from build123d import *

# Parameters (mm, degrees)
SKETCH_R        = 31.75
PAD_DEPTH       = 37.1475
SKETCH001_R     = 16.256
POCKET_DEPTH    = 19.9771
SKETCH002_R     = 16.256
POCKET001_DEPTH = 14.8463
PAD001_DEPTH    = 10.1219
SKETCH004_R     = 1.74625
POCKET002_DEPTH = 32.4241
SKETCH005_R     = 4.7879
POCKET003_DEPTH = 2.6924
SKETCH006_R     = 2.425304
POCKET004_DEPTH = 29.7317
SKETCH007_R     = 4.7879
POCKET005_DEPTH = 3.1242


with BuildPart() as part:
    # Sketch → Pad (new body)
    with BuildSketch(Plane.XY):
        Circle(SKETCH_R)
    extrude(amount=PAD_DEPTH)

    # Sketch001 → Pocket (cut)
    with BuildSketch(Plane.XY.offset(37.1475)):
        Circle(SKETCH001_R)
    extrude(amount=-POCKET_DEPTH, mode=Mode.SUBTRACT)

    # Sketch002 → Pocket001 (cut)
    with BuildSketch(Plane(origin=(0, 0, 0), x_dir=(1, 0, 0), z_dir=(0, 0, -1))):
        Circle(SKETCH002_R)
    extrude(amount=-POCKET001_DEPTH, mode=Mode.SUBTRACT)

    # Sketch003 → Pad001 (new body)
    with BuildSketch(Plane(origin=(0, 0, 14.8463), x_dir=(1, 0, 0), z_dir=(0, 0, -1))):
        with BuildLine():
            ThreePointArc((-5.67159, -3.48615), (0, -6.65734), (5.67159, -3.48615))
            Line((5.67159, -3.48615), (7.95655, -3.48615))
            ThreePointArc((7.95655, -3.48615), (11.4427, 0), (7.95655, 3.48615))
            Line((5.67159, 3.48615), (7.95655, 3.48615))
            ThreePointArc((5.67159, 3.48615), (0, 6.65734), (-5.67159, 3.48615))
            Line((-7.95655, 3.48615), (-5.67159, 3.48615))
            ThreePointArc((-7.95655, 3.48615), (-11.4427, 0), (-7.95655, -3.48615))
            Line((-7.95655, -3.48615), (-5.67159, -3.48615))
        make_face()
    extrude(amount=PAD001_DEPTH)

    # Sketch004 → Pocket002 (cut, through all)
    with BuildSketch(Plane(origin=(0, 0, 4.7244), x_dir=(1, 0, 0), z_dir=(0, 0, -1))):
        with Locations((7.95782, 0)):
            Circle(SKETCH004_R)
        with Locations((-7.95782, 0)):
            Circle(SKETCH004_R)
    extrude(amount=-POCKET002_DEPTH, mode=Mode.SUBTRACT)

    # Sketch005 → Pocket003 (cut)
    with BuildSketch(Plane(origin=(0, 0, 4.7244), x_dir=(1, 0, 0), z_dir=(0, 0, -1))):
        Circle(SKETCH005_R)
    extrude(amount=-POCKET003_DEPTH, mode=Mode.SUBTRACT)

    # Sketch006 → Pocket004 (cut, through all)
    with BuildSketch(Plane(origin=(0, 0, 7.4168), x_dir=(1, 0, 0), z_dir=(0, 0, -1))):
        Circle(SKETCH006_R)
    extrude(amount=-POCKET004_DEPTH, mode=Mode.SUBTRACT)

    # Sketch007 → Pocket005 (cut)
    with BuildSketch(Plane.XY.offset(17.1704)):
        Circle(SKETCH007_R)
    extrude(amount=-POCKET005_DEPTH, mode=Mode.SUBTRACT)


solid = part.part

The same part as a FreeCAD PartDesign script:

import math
import FreeCAD as App
import Part
import Sketcher
from FreeCAD import Vector
Q = App.Units.Quantity

doc = App.newDocument("Part")
body = doc.addObject("PartDesign::Body", "Body")

sketch1 = body.newObject("Sketcher::SketchObject", "Sketch")
sketch1.AttachmentSupport = (doc.getObject("XY_Plane"), [""])
sketch1.MapMode = "FlatFace"
sketch1.addGeometry(Part.Circle(Vector(0, 0, 0), Vector(0, 0, 1), 31.75), False)
sketch1.addConstraint([
    Sketcher.Constraint("Coincident", 0, 3, -1, 1),
    Sketcher.Constraint("Diameter", 0, Q("2.5 in")),
])
pad1 = body.newObject("PartDesign::Pad", "Pad")
pad1.Profile = sketch1
pad1.Length = Q("1.4625 in")

sketch2 = body.newObject("Sketcher::SketchObject", "Sketch001")
sketch2.AttachmentSupport = (doc.getObject("XY_Plane"), [""])
sketch2.MapMode = "FlatFace"
sketch2.AttachmentOffset = App.Placement(Vector(0, 0, 1.4625 * 25.4), App.Rotation())
sketch2.addGeometry(Part.Circle(Vector(0, 0, 0), Vector(0, 0, 1), 16.256), False)
sketch2.addConstraint([
    Sketcher.Constraint("Coincident", 0, 3, -1, 1),
    Sketcher.Constraint("Diameter", 0, Q("1.28 in")),
])
pocket1 = body.newObject("PartDesign::Pocket", "Pocket")
pocket1.Profile = sketch2
pocket1.Length = Q("0.7865 in")

sketch3 = body.newObject("Sketcher::SketchObject", "Sketch002")
sketch3.AttachmentSupport = (doc.getObject("XY_Plane"), [""])
sketch3.MapMode = "FlatFace"
sketch3.addGeometry(Part.Circle(Vector(0, 0, 0), Vector(0, 0, 1), 16.256), False)
sketch3.addConstraint([
    Sketcher.Constraint("Coincident", 0, 3, -1, 1),
    Sketcher.Constraint("Diameter", 0, Q("1.28 in")),
])
pocket2 = body.newObject("PartDesign::Pocket", "Pocket001")
pocket2.Profile = sketch3
pocket2.Length = Q("0.5845 in")
pocket2.Reversed = True

sketch4 = body.newObject("Sketcher::SketchObject", "Sketch003")
sketch4.AttachmentSupport = (doc.getObject("XY_Plane"), [""])
sketch4.MapMode = "FlatFace"
sketch4.AttachmentOffset = App.Placement(Vector(0, 0, 0.5845 * 25.4), App.Rotation())
sketch4.addGeometry([
    Part.ArcOfCircle(Part.Circle(Vector(0, 0, 0), Vector(0, 0, 1), 6.65734), math.radians(31.577748), math.radians(148.422252)),
    Part.LineSegment(Vector(5.67159, 3.48615, 0), Vector(7.95655, 3.48615, 0)),
    Part.ArcOfCircle(Part.Circle(Vector(7.95655, 0, 0), Vector(0, 0, 1), 3.48615), math.radians(-90), math.radians(90)),
    Part.LineSegment(Vector(7.95655, -3.48615, 0), Vector(5.67159, -3.48615, 0)),
    Part.ArcOfCircle(Part.Circle(Vector(0, 0, 0), Vector(0, 0, 1), 6.65734), math.radians(-148.422252), math.radians(-31.577748)),
    Part.LineSegment(Vector(-5.67159, -3.48615, 0), Vector(-7.95655, -3.48615, 0)),
    Part.ArcOfCircle(Part.Circle(Vector(-7.95655, 0, 0), Vector(0, 0, 1), 3.48615), math.radians(90), math.radians(270)),
    Part.LineSegment(Vector(-7.95655, 3.48615, 0), Vector(-5.67159, 3.48615, 0)),
], False)
sketch4.addConstraint([
    Sketcher.Constraint("Coincident", 0, 1, 1, 1),
    Sketcher.Constraint("Tangent", 1, 2, 2, 2),
    Sketcher.Constraint("Tangent", 2, 1, 3, 1),
    Sketcher.Constraint("Coincident", 3, 2, 4, 2),
    Sketcher.Constraint("Coincident", 4, 1, 5, 1),
    Sketcher.Constraint("Tangent", 5, 2, 6, 2),
    Sketcher.Constraint("Tangent", 6, 1, 7, 1),
    Sketcher.Constraint("Coincident", 7, 2, 0, 2),
    Sketcher.Constraint("Horizontal", 1),
    Sketcher.Constraint("Horizontal", 3),
    Sketcher.Constraint("Horizontal", 5),
    Sketcher.Constraint("Horizontal", 7),
    Sketcher.Constraint("Coincident", 0, 3, -1, 1),
    Sketcher.Constraint("Coincident", 4, 3, -1, 1),
    Sketcher.Constraint("Equal", 0, 4),
    Sketcher.Constraint("Equal", 2, 6),
    Sketcher.Constraint("Symmetric", 2, 3, 6, 3, -1, 1),
    Sketcher.Constraint("PointOnObject", 2, 3, -1),
    Sketcher.Constraint("Radius", 0, Q("0.2621 in")),
    Sketcher.Constraint("Radius", 2, Q("3.48615 mm")),
    Sketcher.Constraint("DistanceX", 6, 3, 2, 3, Q("0.6265 in")),
])
pad2 = body.newObject("PartDesign::Pad", "Pad001")
pad2.Profile = sketch4
pad2.Length = Q("0.3985 in")
pad2.Reversed = True

sketch5 = body.newObject("Sketcher::SketchObject", "Sketch004")
sketch5.AttachmentSupport = (doc.getObject("XY_Plane"), [""])
sketch5.MapMode = "FlatFace"
sketch5.AttachmentOffset = App.Placement(Vector(0, 0, 0.186 * 25.4), App.Rotation())
sketch5.addGeometry([
    Part.Circle(Vector(7.95782, 0, 0), Vector(0, 0, 1), 1.74625),
    Part.Circle(Vector(-7.95782, 0, 0), Vector(0, 0, 1), 1.74625),
], False)
sketch5.addConstraint([
    Sketcher.Constraint("Equal", 0, 1),
    Sketcher.Constraint("Symmetric", 0, 3, 1, 3, -1, 1),
    Sketcher.Constraint("PointOnObject", 0, 3, -1),
    Sketcher.Constraint("Diameter", 0, Q("0.1375 in")),
    Sketcher.Constraint("DistanceX", -1, 1, 0, 3, Q("0.3133 in")),
])
pocket3 = body.newObject("PartDesign::Pocket", "Pocket002")
pocket3.Profile = sketch5
pocket3.Type = "ThroughAll"
pocket3.Reversed = True

sketch6 = body.newObject("Sketcher::SketchObject", "Sketch005")
sketch6.AttachmentSupport = (doc.getObject("XY_Plane"), [""])
sketch6.MapMode = "FlatFace"
sketch6.AttachmentOffset = App.Placement(Vector(0, 0, 0.186 * 25.4), App.Rotation())
sketch6.addGeometry(Part.Circle(Vector(0, 0, 0), Vector(0, 0, 1), 4.7879), False)
sketch6.addConstraint([
    Sketcher.Constraint("Coincident", 0, 3, -1, 1),
    Sketcher.Constraint("Diameter", 0, Q("0.377 in")),
])
pocket4 = body.newObject("PartDesign::Pocket", "Pocket003")
pocket4.Profile = sketch6
pocket4.Length = Q("0.106 in")
pocket4.Reversed = True

sketch7 = body.newObject("Sketcher::SketchObject", "Sketch006")
sketch7.AttachmentSupport = (doc.getObject("XY_Plane"), [""])
sketch7.MapMode = "FlatFace"
sketch7.AttachmentOffset = App.Placement(Vector(0, 0, 0.292 * 25.4), App.Rotation())
sketch7.addGeometry(Part.Circle(Vector(0, 0, 0), Vector(0, 0, 1), 2.425304), False)
sketch7.addConstraint([
    Sketcher.Constraint("Coincident", 0, 3, -1, 1),
    Sketcher.Constraint("Diameter", 0, Q("4.850608 mm")),
])
pocket5 = body.newObject("PartDesign::Pocket", "Pocket004")
pocket5.Profile = sketch7
pocket5.Type = "ThroughAll"
pocket5.Reversed = True

sketch8 = body.newObject("Sketcher::SketchObject", "Sketch007")
sketch8.AttachmentSupport = (doc.getObject("XY_Plane"), [""])
sketch8.MapMode = "FlatFace"
sketch8.AttachmentOffset = App.Placement(Vector(0, 0, 0.676 * 25.4), App.Rotation())
sketch8.addGeometry(Part.Circle(Vector(0, 0, 0), Vector(0, 0, 1), 4.7879), False)
sketch8.addConstraint([
    Sketcher.Constraint("Coincident", 0, 3, -1, 1),
    Sketcher.Constraint("Diameter", 0, Q("0.377 in")),
])
pocket6 = body.newObject("PartDesign::Pocket", "Pocket005")
pocket6.Profile = sketch8
pocket6.Length = Q("0.123 in")

doc.recompute()
